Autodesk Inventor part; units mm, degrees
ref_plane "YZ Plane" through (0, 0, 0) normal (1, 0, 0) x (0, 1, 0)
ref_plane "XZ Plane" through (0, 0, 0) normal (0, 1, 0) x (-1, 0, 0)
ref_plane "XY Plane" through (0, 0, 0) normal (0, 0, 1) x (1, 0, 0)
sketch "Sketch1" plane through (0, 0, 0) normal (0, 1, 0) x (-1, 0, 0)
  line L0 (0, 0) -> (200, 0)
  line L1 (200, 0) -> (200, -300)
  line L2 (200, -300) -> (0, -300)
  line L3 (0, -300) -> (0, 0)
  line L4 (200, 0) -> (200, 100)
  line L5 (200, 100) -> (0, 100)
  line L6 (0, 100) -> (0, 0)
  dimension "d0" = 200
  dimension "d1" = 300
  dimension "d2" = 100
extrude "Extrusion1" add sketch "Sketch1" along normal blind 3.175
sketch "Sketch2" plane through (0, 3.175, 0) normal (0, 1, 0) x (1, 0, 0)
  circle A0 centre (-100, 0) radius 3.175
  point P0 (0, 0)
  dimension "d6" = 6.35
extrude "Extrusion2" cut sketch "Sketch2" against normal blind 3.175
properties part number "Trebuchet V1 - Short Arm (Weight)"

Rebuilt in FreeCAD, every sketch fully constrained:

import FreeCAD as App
import Part
import Sketcher

doc = App.newDocument("Part")
body = doc.addObject("PartDesign::Body", "Body")

# Sketch on XZ plane
sketch1 = body.newObject("Sketcher::SketchObject", "Sketch")
sketch1.AttachmentSupport = (doc.getObject("XZ_Plane"), [""])
sketch1.MapMode = "FlatFace"
sketch1.addGeometry([
    Part.LineSegment(App.Vector(0, 100, 0), App.Vector(0, -300, 0)),
    Part.LineSegment(App.Vector(0, -300, 0), App.Vector(-200, -300, 0)),
    Part.LineSegment(App.Vector(-200, -300, 0), App.Vector(-200, 100, 0)),
    Part.LineSegment(App.Vector(-200, 100, 0), App.Vector(0, 100, 0)),
], False)
sketch1.addConstraint([
    Sketcher.Constraint("Coincident", 0, 2, 1, 1),
    Sketcher.Constraint("Coincident", 1, 2, 2, 1),
    Sketcher.Constraint("Coincident", 2, 2, 3, 1),
    Sketcher.Constraint("Coincident", 3, 2, 0, 1),
    Sketcher.Constraint("Vertical", 0),
    Sketcher.Constraint("Horizontal", 1),
    Sketcher.Constraint("Vertical", 2),
    Sketcher.Constraint("Horizontal", 3),
    Sketcher.Constraint("PointOnObject", 0, 2, -2),
    Sketcher.Constraint("DistanceX", 1, 2, 1, 1, 200.0),
    Sketcher.Constraint("DistanceY", 0, 2, -1, 1, 300.0),
    Sketcher.Constraint("DistanceY", -1, 1, 2, 2, 100.0),
])
pad1 = body.newObject("PartDesign::Pad", "Pad")
pad1.Profile = sketch1
pad1.Length = 3.175
pad1.Reversed = True

# Sketch on XZ plane
sketch2 = body.newObject("Sketcher::SketchObject", "Sketch001")
sketch2.AttachmentSupport = (doc.getObject("XZ_Plane"), [""])
sketch2.MapMode = "FlatFace"
sketch2.AttachmentOffset = App.Placement(App.Vector(0, 0, -3.175), App.Rotation())
sketch2.addGeometry(Part.Circle(App.Vector(-100, 0, 0), App.Vector(0, 0, 1), 3.2), False)
sketch2.addConstraint([
    Sketcher.Constraint("PointOnObject", 0, 3, -1),
    Sketcher.Constraint("Diameter", 0, 6.35),
    Sketcher.Constraint("DistanceX", 0, 3, -1, 1, 100.0),
])
pocket1 = body.newObject("PartDesign::Pocket", "Pocket")
pocket1.Profile = sketch2
pocket1.Length = 3.175
pocket1.Reversed = True

doc.recompute()
